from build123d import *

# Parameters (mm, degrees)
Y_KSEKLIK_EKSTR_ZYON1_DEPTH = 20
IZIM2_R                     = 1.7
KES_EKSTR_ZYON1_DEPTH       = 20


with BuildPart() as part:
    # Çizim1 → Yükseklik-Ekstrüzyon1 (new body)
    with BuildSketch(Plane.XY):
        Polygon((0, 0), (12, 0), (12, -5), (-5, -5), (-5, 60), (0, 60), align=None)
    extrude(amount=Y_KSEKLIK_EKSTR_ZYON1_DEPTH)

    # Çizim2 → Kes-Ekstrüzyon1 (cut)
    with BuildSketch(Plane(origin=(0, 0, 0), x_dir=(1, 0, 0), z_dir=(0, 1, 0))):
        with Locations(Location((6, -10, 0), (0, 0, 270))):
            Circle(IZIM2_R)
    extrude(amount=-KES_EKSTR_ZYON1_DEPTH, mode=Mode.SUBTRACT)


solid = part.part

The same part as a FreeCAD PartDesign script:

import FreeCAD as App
import Part
import Sketcher
from FreeCAD import Vector


def add_polygon(sketch, points):
    """Adds a closed chain of lines whose ends are joined by coincident constraints."""
    first, n = sketch.GeometryCount, len(points)
    for a, b in zip(points, points[1:] + points[:1]):
        sketch.addGeometry(Part.LineSegment(App.Vector(*a, 0), App.Vector(*b, 0)), False)
    for i in range(n):
        sketch.addConstraint(Sketcher.Constraint("Coincident", first + i, 2, first + (i + 1) % n, 1))

doc = App.newDocument("Part")
body = doc.addObject("PartDesign::Body", "Body")

# Sketch on XY plane
sketch1 = body.newObject("Sketcher::SketchObject", "Sketch")
sketch1.AttachmentSupport = (doc.getObject("XY_Plane"), [""])
sketch1.MapMode = "FlatFace"
add_polygon(sketch1, [(12, 0), (0, 0), (0, 60), (-5, 60), (-5, -5), (12, -5)])  # lines 0-5
sketch1.addConstraint([
    Sketcher.Constraint("Horizontal", 0),
    Sketcher.Constraint("Vertical", 1),
    Sketcher.Constraint("Horizontal", 2),
    Sketcher.Constraint("Vertical", 3),
    Sketcher.Constraint("Horizontal", 4),
    Sketcher.Constraint("Vertical", 5),
    Sketcher.Constraint("Coincident", 0, 2, -1, 1),
    Sketcher.Constraint("Equal", 2, 5),
    Sketcher.Constraint("DistanceX", 0, 2, 0, 1, 12.0),
    Sketcher.Constraint("DistanceX", 2, 2, 2, 1, 5.0),
    Sketcher.Constraint("DistanceY", 1, 1, 1, 2, 60.0),
])
pad1 = body.newObject("PartDesign::Pad", "Pad")
pad1.Profile = sketch1
pad1.Length = 20

# Sketch on XZ plane
sketch2 = body.newObject("Sketcher::SketchObject", "Sketch001")
sketch2.AttachmentSupport = (doc.getObject("XZ_Plane"), [""])
sketch2.MapMode = "FlatFace"
sketch2.addGeometry(Part.Circle(Vector(6, 10, 0), Vector(0, 0, 1), 1.7), False)
sketch2.addConstraint([
    Sketcher.Constraint("Diameter", 0, 3.4),
    Sketcher.Constraint("DistanceX", -1, 1, 0, 3, 6.0),
    Sketcher.Constraint("DistanceY", -1, 1, 0, 3, 10.0),
])
pocket1 = body.newObject("PartDesign::Pocket", "Pocket")
pocket1.Profile = sketch2
pocket1.Length = 20
pocket1.Reversed = True

doc.recompute()
